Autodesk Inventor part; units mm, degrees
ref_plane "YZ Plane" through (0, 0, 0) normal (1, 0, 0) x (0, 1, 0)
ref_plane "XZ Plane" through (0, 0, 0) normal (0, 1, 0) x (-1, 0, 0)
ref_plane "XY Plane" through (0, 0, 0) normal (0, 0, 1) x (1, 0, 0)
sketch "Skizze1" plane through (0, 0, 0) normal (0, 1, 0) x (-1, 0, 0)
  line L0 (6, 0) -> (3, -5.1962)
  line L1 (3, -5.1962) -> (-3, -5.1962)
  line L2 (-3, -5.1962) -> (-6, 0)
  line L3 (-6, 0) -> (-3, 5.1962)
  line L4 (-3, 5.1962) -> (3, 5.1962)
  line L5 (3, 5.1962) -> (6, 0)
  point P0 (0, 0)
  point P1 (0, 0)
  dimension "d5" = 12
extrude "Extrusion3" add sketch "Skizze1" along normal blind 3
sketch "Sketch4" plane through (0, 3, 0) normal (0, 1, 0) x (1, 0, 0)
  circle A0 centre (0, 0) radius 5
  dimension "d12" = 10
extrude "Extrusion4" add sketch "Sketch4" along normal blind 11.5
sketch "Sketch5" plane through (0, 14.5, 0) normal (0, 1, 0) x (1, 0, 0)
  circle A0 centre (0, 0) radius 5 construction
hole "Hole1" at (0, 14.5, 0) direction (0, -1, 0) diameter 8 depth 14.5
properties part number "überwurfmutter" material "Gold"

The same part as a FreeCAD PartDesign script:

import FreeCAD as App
import Part
import Sketcher
Q = App.Units.Quantity

doc = App.newDocument("Part")
params = doc.addObject("Spreadsheet::Sheet", "Params")
for row, (alias, value) in enumerate([
    ("sketch1_width", "6 mm"),
    ("pad1_length", "3 mm"),
    ("sketch2_diameter", "10 mm"),
    ("pad2_length", "11.5 mm"),
    ("sketch3_diameter", "8 mm"),
    ("hole_diameter", "8 mm"),
    ("hole_depth", "14.5 mm"),
], start=1):
    params.set(f"A{row}", alias)
    params.set(f"B{row}", "=" + value)
    params.setAlias(f"B{row}", alias)

body = doc.addObject("PartDesign::Body", "Body")

# Sketch on XZ plane
sketch1 = doc.addObject("Sketcher::SketchObject", "Sketch")
body.addObject(sketch1)
sketch1.AttachmentSupport = (doc.XZ_Plane, [""])
sketch1.MapMode = "FlatFace"
sketch1.addGeometry(Part.LineSegment(App.Vector(-3, -5, 0), App.Vector(-6, 0, 0)), False)
sketch1.addGeometry(Part.LineSegment(App.Vector(-6, 0, 0), App.Vector(-3, 5, 0)), False)
sketch1.addGeometry(Part.LineSegment(App.Vector(-3, 5, 0), App.Vector(3, 5, 0)), False)
sketch1.addGeometry(Part.LineSegment(App.Vector(3, 5, 0), App.Vector(6, 0, 0)), False)
sketch1.addGeometry(Part.LineSegment(App.Vector(6, 0, 0), App.Vector(3, -5, 0)), False)
sketch1.addGeometry(Part.LineSegment(App.Vector(3, -5, 0), App.Vector(-3, -5, 0)), False)
sketch1.addConstraint(Sketcher.Constraint("Coincident", 0, 2, 1, 1))
sketch1.addConstraint(Sketcher.Constraint("Coincident", 1, 2, 2, 1))
sketch1.addConstraint(Sketcher.Constraint("Coincident", 2, 2, 3, 1))
sketch1.addConstraint(Sketcher.Constraint("Coincident", 3, 2, 4, 1))
sketch1.addConstraint(Sketcher.Constraint("Coincident", 4, 2, 5, 1))
sketch1.addConstraint(Sketcher.Constraint("Coincident", 5, 2, 0, 1))
sketch1.addConstraint(Sketcher.Constraint("Horizontal", 2))
sketch1.addConstraint(Sketcher.Constraint("Horizontal", 5))
sketch1.addConstraint(Sketcher.Constraint("Symmetric", 0, 2, 3, 2, -1, 1))
sketch1.addConstraint(Sketcher.Constraint("Symmetric", 1, 2, 4, 2, -1, 1))
sketch1.addConstraint(Sketcher.Constraint("PointOnObject", 0, 2, -1))
sketch1.addConstraint(Sketcher.Constraint("Parallel", 0, 3))
sketch1.addConstraint(Sketcher.Constraint("Vertical", 2, 2, 4, 2))
sketch1.addConstraint(Sketcher.Constraint("DistanceX", 0, 2, 3, 2, 12.0))
sketch1.addConstraint(Sketcher.Constraint("DistanceX", 2, 1, 2, 2, 6.0))
sketch1.addConstraint(Sketcher.Constraint("Angle", 0, Q("119.9998 deg")))
sketch1.setExpression("Constraints[14]", "Params.sketch1_width")
pad1 = doc.addObject("PartDesign::Pad", "Pad")
body.addObject(pad1)
pad1.Profile = sketch1
pad1.setExpression("Length", "Params.pad1_length")
pad1.Reversed = True

# Sketch on XZ plane
sketch2 = doc.addObject("Sketcher::SketchObject", "Sketch001")
body.addObject(sketch2)
sketch2.AttachmentSupport = (doc.XZ_Plane, [""])
sketch2.MapMode = "FlatFace"
sketch2.AttachmentOffset = App.Placement(App.Vector(0, 0, -3), App.Rotation())
sketch2.addGeometry(Part.Circle(App.Vector(0, 0, 0), App.Vector(0, 0, 1), 5), False)
sketch2.addConstraint(Sketcher.Constraint("Coincident", 0, 3, -1, 1))
sketch2.addConstraint(Sketcher.Constraint("Diameter", 0, 10.0))
sketch2.setExpression("Constraints[1]", "Params.sketch2_diameter")
pad2 = doc.addObject("PartDesign::Pad", "Pad001")
body.addObject(pad2)
pad2.Profile = sketch2
pad2.setExpression("Length", "Params.pad2_length")
pad2.Reversed = True

# Sketch on XZ plane
sketch3 = doc.addObject("Sketcher::SketchObject", "Sketch002")
body.addObject(sketch3)
sketch3.AttachmentSupport = (doc.XZ_Plane, [""])
sketch3.MapMode = "FlatFace"
sketch3.AttachmentOffset = App.Placement(App.Vector(0, 0, -14.5), App.Rotation())
sketch3.addGeometry(Part.Circle(App.Vector(0, 0, 0), App.Vector(0, 0, 1), 4), False)
sketch3.addConstraint(Sketcher.Constraint("Coincident", 0, 3, -1, 1))
sketch3.addConstraint(Sketcher.Constraint("Diameter", 0, 8.0))
sketch3.setExpression("Constraints[1]", "Params.sketch3_diameter")
doc.recompute()
hole = doc.addObject("PartDesign::Hole", "Hole")
body.addObject(hole)
hole.Profile = sketch3
hole.ThreadType = "None"
hole.setExpression("Diameter", "Params.hole_diameter")
hole.DepthType = "Dimension"
hole.setExpression("Depth", "Params.hole_depth")
hole.DrillPoint = "Flat"
hole.Reversed = True

doc.recompute()
